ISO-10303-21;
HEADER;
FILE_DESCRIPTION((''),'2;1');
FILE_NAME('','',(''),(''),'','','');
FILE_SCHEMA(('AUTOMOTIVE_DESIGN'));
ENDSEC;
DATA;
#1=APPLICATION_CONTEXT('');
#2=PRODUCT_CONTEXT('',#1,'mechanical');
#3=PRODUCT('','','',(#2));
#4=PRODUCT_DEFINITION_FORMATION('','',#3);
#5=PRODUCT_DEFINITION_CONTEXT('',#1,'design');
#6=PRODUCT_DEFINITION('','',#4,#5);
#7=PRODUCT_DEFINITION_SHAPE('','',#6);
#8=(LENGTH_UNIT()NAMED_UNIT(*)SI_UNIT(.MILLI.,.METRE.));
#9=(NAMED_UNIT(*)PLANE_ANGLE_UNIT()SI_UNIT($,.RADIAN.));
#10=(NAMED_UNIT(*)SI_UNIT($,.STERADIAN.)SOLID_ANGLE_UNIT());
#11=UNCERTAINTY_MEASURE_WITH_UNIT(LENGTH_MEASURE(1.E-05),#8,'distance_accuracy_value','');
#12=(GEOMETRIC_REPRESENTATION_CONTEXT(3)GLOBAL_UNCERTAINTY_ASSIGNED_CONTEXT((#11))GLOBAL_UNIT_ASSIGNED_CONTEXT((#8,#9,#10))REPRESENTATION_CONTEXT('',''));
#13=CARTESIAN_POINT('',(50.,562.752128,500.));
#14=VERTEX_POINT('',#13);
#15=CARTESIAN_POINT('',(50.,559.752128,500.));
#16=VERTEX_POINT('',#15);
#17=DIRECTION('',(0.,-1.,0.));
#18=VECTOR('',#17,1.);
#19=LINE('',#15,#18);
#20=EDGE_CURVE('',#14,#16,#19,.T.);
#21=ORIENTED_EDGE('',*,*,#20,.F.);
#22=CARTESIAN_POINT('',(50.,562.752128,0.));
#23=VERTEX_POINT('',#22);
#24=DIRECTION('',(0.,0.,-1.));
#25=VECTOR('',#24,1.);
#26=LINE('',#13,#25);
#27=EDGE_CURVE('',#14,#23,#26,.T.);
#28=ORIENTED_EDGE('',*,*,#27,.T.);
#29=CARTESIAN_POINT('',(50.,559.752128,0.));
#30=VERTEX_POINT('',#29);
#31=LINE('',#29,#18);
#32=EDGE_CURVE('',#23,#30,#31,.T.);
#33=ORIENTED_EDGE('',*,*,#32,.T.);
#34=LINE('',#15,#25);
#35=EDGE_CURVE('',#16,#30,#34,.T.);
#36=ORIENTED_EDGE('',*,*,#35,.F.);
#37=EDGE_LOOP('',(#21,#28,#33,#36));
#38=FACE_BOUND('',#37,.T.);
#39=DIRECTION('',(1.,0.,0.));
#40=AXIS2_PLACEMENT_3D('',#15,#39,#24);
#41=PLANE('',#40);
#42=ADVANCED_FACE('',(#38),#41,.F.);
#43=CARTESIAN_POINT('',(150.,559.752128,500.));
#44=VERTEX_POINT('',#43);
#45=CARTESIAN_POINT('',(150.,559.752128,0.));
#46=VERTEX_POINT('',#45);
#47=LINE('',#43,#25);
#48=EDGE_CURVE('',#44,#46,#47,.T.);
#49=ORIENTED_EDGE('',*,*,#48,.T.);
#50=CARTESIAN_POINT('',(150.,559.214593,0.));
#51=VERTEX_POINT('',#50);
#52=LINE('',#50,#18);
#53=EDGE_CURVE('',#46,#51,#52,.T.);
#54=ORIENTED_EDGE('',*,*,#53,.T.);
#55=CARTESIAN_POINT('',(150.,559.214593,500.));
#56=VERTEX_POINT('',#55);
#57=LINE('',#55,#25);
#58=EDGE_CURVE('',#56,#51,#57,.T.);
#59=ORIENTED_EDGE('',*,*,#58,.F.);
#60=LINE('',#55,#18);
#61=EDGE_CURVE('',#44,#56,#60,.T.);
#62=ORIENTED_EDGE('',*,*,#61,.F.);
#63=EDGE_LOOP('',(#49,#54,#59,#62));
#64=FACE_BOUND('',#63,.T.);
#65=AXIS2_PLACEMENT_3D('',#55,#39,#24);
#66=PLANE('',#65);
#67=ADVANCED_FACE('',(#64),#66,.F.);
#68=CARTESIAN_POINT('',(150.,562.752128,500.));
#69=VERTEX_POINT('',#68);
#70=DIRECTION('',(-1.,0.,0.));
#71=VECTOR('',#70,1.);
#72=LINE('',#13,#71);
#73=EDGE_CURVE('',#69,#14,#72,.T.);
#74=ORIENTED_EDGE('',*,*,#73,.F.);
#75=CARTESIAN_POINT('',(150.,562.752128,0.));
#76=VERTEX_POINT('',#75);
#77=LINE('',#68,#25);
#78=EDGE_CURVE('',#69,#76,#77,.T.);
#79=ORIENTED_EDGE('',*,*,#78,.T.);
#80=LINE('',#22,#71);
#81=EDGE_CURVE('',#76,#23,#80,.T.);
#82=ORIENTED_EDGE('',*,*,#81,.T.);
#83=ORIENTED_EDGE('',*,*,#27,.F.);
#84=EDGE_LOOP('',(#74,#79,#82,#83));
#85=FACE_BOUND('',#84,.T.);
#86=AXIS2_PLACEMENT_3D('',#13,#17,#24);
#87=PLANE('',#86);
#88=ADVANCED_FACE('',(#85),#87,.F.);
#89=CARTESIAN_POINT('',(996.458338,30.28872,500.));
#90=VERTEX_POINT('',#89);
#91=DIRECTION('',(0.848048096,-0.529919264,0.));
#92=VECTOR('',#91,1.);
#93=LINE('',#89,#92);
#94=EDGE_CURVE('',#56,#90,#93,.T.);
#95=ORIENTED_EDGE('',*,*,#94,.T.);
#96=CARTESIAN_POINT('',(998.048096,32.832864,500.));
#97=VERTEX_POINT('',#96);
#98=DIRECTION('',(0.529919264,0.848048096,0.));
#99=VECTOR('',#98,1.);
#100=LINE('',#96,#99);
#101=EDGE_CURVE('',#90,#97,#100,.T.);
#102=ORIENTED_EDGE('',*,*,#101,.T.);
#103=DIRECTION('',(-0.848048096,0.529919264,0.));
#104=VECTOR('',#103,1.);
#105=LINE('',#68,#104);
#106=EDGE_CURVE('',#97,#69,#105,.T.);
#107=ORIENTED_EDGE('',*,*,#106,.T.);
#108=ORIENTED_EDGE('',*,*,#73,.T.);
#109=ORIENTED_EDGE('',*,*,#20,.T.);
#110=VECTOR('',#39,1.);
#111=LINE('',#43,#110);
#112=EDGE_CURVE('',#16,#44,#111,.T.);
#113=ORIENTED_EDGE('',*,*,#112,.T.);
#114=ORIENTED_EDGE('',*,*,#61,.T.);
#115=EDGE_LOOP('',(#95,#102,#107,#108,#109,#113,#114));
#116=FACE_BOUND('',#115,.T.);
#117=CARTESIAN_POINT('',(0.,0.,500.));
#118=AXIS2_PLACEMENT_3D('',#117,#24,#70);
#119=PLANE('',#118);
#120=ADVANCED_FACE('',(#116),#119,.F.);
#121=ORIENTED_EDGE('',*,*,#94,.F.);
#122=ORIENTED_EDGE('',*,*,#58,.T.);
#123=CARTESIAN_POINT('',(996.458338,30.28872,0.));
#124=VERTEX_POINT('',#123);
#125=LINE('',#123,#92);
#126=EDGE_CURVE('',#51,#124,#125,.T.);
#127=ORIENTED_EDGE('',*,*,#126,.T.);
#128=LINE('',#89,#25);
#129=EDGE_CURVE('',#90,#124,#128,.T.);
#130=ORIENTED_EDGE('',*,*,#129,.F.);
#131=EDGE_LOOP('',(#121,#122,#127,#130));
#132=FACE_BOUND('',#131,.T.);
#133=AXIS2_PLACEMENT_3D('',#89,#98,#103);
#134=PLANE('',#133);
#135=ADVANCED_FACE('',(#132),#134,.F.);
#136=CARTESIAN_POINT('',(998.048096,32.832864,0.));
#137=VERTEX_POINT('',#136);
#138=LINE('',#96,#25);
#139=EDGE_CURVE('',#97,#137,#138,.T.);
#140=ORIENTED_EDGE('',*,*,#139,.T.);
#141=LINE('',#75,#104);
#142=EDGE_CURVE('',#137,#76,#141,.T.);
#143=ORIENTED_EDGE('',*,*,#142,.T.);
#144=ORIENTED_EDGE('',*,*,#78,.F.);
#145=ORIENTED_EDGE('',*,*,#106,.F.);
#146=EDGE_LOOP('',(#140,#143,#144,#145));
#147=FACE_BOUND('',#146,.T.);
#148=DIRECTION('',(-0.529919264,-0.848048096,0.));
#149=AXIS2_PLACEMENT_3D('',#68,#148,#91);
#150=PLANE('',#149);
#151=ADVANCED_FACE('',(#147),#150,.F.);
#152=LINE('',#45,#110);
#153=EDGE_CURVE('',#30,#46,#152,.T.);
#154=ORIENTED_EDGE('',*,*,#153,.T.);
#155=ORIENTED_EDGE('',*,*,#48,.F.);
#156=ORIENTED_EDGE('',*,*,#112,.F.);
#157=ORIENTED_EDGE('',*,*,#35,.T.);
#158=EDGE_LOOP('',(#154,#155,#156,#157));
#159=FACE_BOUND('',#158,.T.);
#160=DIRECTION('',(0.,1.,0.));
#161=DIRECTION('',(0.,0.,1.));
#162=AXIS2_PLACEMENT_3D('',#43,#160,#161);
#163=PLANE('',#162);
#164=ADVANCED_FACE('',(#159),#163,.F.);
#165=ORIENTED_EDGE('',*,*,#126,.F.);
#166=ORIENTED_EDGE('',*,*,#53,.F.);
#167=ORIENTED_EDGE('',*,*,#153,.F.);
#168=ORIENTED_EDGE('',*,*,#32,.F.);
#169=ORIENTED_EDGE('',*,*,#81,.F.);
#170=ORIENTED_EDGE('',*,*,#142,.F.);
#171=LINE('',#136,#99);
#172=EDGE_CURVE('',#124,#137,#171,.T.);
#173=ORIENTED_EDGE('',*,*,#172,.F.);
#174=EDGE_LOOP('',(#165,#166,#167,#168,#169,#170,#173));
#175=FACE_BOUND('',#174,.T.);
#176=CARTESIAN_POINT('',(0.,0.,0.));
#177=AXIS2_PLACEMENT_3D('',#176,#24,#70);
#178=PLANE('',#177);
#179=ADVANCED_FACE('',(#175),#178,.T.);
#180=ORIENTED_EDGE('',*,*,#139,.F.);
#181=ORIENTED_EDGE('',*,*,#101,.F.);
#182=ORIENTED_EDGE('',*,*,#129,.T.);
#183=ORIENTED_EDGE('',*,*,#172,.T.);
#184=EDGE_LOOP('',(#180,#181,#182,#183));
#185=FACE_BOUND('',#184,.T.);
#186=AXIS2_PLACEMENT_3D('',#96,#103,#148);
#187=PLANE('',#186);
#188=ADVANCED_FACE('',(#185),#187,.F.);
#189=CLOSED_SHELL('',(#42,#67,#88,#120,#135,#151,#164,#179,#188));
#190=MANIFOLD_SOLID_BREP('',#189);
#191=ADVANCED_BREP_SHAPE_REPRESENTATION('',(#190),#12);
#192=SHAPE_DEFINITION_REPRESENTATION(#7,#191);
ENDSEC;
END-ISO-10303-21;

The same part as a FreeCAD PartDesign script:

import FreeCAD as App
import Part
import Sketcher

V = App.Vector
Q = App.Units.Quantity


def add_polygon(sketch, points):
    """Adds a closed chain of lines whose ends are joined by coincident constraints."""
    first, n = sketch.GeometryCount, len(points)
    for a, b in zip(points, points[1:] + points[:1]):
        sketch.addGeometry(Part.LineSegment(App.Vector(*a, 0), App.Vector(*b, 0)), False)
    for i in range(n):
        sketch.addConstraint(Sketcher.Constraint("Coincident", first + i, 2, first + (i + 1) % n, 1))

doc = App.newDocument("Part")
params = doc.addObject("Spreadsheet::Sheet", "Params")
for row, (alias, value) in enumerate([
    ("sketch1_width", "100 mm"),
    ("sketch1_height", "3 mm"),
    ("sketch1_length", "3 mm"),
    ("sketch1_length2", "1000 mm"),
    ("pad1_length", "500 mm"),
], start=1):
    params.set(f"A{row}", alias)
    params.set(f"B{row}", "=" + value)
    params.setAlias(f"B{row}", alias)

body = doc.addObject("PartDesign::Body", "Body")

# Sketch on XY plane
sketch1 = doc.addObject("Sketcher::SketchObject", "Sketch")
body.addObject(sketch1)
sketch1.AttachmentSupport = (doc.XY_Plane, [""])
sketch1.MapMode = "FlatFace"
add_polygon(sketch1, [(150, 562.8), (50, 562.8), (50, 559.8), (150, 559.8), (150, 559.2), (996.5, 30.3), (998, 32.8)])  # lines 0-6
sketch1.addConstraint([
    Sketcher.Constraint("Horizontal", 0),
    Sketcher.Constraint("Vertical", 1),
    Sketcher.Constraint("Horizontal", 2),
    Sketcher.Constraint("Vertical", 3),
    Sketcher.Constraint("Perpendicular", 4, 5),
    Sketcher.Constraint("Perpendicular", 5, 6),
    Sketcher.Constraint("Vertical", 3, 2, 6, 2),
    Sketcher.Constraint("DistanceX", 0, 2, 0, 1, Q("100 mm")),
    Sketcher.Constraint("DistanceY", 1, 2, 1, 1, Q("3 mm")),
    Sketcher.Constraint("Angle", 4, Q("-32 deg")),
    Sketcher.Constraint("Distance", 5, Q("3 mm")),
    Sketcher.Constraint("Distance", 6, Q("1000 mm")),
    Sketcher.Constraint("DistanceX", -1, 1, 0, 2, Q("50 mm")),
    Sketcher.Constraint("DistanceY", -1, 1, 0, 2, Q("562.752128 mm")),
])
sketch1.setExpression("Constraints[14]", "Params.sketch1_width")
sketch1.setExpression("Constraints[15]", "Params.sketch1_height")
sketch1.setExpression("Constraints[17]", "Params.sketch1_length")
sketch1.setExpression("Constraints[18]", "Params.sketch1_length2")
pad1 = doc.addObject("PartDesign::Pad", "Pad")
body.addObject(pad1)
pad1.Profile = sketch1
pad1.setExpression("Length", "Params.pad1_length")

doc.recompute()
